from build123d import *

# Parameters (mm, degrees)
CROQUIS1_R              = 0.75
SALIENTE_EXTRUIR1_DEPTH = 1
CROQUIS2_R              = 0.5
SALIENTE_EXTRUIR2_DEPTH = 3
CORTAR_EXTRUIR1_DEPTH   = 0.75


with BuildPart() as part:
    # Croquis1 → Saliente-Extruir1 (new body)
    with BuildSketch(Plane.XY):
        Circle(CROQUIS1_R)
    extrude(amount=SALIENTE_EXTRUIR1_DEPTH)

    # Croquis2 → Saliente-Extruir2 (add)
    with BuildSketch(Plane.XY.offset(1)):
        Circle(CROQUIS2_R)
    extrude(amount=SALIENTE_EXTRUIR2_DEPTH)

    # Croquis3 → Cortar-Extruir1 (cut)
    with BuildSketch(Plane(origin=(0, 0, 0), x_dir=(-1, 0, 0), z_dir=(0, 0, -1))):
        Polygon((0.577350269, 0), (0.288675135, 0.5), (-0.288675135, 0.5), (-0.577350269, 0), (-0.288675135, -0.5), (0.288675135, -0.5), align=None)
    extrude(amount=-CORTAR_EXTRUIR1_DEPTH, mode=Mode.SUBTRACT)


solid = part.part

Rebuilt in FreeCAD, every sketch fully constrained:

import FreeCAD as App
import Part
import Sketcher
from FreeCAD import Vector
Q = App.Units.Quantity

doc = App.newDocument("Part")
body = doc.addObject("PartDesign::Body", "Body")

sketch1 = body.newObject("Sketcher::SketchObject", "Sketch")
sketch1.AttachmentSupport = (doc.getObject("XY_Plane"), [""])
sketch1.MapMode = "FlatFace"
sketch1.addGeometry(Part.Circle(Vector(0, 0, 0), Vector(0, 0, 1), 0.75), False)
sketch1.addConstraint(Sketcher.Constraint("Coincident", 0, 3, -1, 1))
sketch1.addConstraint(Sketcher.Constraint("Diameter", 0, Q("1.5 mm")))
pad1 = body.newObject("PartDesign::Pad", "Pad")
pad1.Profile = sketch1
pad1.Length = 1

sketch2 = body.newObject("Sketcher::SketchObject", "Sketch001")
sketch2.AttachmentSupport = (doc.getObject("XY_Plane"), [""])
sketch2.MapMode = "FlatFace"
sketch2.AttachmentOffset = App.Placement(Vector(0, 0, 1), App.Rotation())
sketch2.addGeometry(Part.Circle(Vector(0, 0, 0), Vector(0, 0, 1), 0.5), False)
sketch2.addConstraint(Sketcher.Constraint("Coincident", 0, 3, -1, 1))
sketch2.addConstraint(Sketcher.Constraint("Diameter", 0, Q("1 mm")))
pad2 = body.newObject("PartDesign::Pad", "Pad001")
pad2.Profile = sketch2
pad2.Length = 3

sketch3 = body.newObject("Sketcher::SketchObject", "Sketch002")
sketch3.AttachmentSupport = (doc.getObject("XY_Plane"), [""])
sketch3.MapMode = "FlatFace"
sketch3.addGeometry(Part.LineSegment(Vector(-0.57735, 0, 0), Vector(-0.288675, 0.5, 0)), False)
sketch3.addGeometry(Part.LineSegment(Vector(-0.288675, 0.5, 0), Vector(0.288675, 0.5, 0)), False)
sketch3.addGeometry(Part.LineSegment(Vector(0.288675, 0.5, 0), Vector(0.57735, 0, 0)), False)
sketch3.addGeometry(Part.LineSegment(Vector(0.57735, 0, 0), Vector(0.288675, -0.5, 0)), False)
sketch3.addGeometry(Part.LineSegment(Vector(0.288675, -0.5, 0), Vector(-0.288675, -0.5, 0)), False)
sketch3.addGeometry(Part.LineSegment(Vector(-0.288675, -0.5, 0), Vector(-0.57735, 0, 0)), False)
sketch3.addConstraint(Sketcher.Constraint("Coincident", 0, 2, 1, 1))
sketch3.addConstraint(Sketcher.Constraint("Coincident", 1, 2, 2, 1))
sketch3.addConstraint(Sketcher.Constraint("Coincident", 2, 2, 3, 1))
sketch3.addConstraint(Sketcher.Constraint("Coincident", 3, 2, 4, 1))
sketch3.addConstraint(Sketcher.Constraint("Coincident", 4, 2, 5, 1))
sketch3.addConstraint(Sketcher.Constraint("Coincident", 5, 2, 0, 1))
sketch3.addConstraint(Sketcher.Constraint("Horizontal", 1))
sketch3.addConstraint(Sketcher.Constraint("Horizontal", 4))
sketch3.addConstraint(Sketcher.Constraint("Symmetric", 0, 2, 3, 2, -1, 1))
sketch3.addConstraint(Sketcher.Constraint("Symmetric", 2, 2, 5, 2, -1, 1))
sketch3.addConstraint(Sketcher.Constraint("PointOnObject", 2, 2, -1))
sketch3.addConstraint(Sketcher.Constraint("Parallel", 2, 5))
sketch3.addConstraint(Sketcher.Constraint("Vertical", 1, 2, 3, 2))
sketch3.addConstraint(Sketcher.Constraint("Angle", 0, Q("60 deg")))
sketch3.addConstraint(Sketcher.Constraint("DistanceY", 3, 2, 1, 2, Q("1 mm")))
sketch3.addConstraint(Sketcher.Constraint("DistanceX", 1, 1, 1, 2, Q("0.57735 mm")))
pocket1 = body.newObject("PartDesign::Pocket", "Pocket")
pocket1.Profile = sketch3
pocket1.Length = 0.75
pocket1.Reversed = True

doc.recompute()
